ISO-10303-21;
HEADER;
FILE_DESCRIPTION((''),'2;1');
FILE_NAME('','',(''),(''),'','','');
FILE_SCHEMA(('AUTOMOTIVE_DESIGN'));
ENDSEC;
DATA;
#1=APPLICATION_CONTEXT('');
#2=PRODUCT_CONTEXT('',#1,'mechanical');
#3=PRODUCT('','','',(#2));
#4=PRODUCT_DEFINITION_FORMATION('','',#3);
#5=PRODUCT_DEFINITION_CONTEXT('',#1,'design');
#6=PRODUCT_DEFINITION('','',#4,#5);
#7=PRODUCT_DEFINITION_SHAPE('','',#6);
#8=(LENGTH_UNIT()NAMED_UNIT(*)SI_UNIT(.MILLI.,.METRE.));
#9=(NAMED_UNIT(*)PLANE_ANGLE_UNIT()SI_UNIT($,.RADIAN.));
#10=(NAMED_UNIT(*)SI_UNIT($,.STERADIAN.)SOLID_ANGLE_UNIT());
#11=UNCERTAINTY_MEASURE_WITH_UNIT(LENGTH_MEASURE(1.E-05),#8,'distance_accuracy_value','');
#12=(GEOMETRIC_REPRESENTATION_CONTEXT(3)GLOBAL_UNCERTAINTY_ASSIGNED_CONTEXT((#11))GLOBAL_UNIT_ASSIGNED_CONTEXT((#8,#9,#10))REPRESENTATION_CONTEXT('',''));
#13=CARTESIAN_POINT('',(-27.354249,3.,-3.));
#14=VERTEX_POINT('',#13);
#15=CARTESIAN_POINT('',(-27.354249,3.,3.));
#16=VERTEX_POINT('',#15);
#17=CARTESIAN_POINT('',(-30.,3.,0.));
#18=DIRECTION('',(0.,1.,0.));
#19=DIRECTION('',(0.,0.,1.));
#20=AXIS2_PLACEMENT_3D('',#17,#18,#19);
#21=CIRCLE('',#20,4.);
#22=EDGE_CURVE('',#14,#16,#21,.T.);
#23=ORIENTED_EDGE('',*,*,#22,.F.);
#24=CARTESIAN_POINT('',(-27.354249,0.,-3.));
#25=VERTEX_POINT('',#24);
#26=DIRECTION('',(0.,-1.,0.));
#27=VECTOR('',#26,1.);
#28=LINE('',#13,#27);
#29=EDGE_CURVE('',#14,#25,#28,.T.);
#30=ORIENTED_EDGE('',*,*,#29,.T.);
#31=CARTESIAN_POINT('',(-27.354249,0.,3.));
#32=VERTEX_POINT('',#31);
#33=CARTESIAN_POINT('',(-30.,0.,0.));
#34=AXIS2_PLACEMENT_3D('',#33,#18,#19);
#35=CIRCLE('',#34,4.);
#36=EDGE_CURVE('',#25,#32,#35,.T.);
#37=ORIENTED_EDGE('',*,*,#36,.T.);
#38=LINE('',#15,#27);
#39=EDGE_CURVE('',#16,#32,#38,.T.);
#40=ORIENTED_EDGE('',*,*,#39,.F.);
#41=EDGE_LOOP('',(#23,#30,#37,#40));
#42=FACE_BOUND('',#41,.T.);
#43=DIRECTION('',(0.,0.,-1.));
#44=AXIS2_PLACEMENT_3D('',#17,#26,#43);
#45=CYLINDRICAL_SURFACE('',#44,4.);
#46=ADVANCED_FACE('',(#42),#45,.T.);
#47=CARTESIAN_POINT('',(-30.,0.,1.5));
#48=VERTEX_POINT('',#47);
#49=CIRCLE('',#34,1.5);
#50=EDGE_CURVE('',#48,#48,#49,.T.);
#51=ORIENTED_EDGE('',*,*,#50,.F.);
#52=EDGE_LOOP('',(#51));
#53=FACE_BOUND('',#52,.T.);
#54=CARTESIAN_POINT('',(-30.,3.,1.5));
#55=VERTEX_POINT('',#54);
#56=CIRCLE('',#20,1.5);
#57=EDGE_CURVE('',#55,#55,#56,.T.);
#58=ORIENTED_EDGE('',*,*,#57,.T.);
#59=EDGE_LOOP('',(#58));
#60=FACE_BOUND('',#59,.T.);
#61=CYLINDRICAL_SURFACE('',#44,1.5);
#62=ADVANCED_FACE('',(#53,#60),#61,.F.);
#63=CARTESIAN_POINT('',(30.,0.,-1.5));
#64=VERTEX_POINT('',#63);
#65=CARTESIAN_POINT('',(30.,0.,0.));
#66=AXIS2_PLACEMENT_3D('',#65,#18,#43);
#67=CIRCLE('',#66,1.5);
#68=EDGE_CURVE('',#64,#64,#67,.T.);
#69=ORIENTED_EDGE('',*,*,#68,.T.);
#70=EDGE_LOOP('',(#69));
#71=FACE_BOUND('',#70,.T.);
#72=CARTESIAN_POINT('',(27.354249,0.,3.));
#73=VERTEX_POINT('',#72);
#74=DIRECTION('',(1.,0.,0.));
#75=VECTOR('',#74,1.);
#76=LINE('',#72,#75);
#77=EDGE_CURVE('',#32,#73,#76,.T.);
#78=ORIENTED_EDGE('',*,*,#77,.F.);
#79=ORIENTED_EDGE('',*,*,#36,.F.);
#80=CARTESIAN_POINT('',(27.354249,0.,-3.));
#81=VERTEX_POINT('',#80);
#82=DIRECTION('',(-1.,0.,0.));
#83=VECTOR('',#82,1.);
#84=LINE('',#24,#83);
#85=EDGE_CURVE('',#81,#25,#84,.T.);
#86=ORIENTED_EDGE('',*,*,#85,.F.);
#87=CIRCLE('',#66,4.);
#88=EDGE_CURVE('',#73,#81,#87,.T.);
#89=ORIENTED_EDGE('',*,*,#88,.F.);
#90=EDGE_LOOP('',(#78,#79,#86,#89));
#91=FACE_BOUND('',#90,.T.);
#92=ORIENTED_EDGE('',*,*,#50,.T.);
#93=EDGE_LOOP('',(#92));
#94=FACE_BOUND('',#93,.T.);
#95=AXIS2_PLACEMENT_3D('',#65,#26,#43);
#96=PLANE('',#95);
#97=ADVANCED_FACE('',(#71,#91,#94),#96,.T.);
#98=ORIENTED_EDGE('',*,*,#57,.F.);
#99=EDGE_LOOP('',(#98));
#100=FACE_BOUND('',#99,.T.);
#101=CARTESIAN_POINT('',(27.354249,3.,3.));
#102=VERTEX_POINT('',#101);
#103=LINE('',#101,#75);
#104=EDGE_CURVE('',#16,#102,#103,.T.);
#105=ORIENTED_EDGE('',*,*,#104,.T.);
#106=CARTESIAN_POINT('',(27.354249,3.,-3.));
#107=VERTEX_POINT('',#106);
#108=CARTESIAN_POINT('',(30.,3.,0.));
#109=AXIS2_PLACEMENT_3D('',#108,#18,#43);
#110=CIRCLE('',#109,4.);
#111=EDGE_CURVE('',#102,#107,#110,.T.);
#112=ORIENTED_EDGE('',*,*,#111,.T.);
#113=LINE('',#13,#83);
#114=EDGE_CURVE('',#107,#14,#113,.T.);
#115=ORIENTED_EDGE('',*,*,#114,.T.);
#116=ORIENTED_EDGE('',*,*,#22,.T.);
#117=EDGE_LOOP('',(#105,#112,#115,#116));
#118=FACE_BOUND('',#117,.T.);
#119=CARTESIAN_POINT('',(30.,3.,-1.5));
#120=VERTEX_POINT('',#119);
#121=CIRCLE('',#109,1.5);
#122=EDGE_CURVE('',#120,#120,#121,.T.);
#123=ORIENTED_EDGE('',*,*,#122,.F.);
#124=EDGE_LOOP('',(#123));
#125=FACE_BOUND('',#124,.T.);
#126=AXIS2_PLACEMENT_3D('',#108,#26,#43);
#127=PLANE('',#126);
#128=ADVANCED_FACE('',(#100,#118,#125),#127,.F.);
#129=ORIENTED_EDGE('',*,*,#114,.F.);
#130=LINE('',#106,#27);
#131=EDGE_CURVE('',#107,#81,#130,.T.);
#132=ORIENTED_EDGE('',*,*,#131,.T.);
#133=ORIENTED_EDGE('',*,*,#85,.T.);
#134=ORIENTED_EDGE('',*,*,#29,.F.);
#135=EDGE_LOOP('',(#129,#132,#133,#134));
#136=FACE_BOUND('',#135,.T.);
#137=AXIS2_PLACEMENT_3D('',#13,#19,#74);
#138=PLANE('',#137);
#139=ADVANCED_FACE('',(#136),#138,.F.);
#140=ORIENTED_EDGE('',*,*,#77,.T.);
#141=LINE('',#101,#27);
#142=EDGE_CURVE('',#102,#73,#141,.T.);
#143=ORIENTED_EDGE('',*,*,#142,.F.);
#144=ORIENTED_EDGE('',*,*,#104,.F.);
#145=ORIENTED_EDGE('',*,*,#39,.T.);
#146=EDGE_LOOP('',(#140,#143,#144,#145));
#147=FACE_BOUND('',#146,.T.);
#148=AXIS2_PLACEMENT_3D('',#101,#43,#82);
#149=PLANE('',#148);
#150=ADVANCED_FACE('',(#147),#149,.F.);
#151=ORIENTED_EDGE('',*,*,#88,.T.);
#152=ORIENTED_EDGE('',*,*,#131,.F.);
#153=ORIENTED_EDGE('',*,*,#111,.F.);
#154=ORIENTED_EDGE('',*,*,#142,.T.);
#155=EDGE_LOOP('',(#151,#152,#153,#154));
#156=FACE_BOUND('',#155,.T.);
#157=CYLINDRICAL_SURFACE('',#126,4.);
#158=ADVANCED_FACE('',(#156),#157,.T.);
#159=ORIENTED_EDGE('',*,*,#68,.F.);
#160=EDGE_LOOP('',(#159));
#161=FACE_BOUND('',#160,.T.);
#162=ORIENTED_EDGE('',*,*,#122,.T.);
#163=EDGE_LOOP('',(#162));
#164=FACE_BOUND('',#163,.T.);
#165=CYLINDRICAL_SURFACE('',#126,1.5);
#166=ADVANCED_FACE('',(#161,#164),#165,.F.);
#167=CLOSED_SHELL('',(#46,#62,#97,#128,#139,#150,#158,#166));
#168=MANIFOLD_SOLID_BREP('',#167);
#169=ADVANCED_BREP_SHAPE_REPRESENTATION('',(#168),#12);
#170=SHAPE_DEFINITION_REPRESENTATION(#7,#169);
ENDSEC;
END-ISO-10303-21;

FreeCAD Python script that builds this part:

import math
import FreeCAD as App
import Part
import Sketcher

V = App.Vector

doc = App.newDocument("Part")
body = doc.addObject("PartDesign::Body", "Body")

sketch1 = body.newObject("Sketcher::SketchObject", "Sketch")
sketch1.AttachmentSupport = (doc.getObject("XZ_Plane"), [""])
sketch1.MapMode = "FlatFace"
sketch1.addGeometry([
    Part.LineSegment(V(27.354249, -3, 0), V(-27.354249, -3, 0)),
    Part.ArcOfCircle(Part.Circle(V(-30, 0, 0), V(0, 0, 1), 4), math.radians(48.590378), math.radians(311.409622)),
    Part.LineSegment(V(-27.354249, 3, 0), V(27.354249, 3, 0)),
    Part.ArcOfCircle(Part.Circle(V(30, 0, 0), V(0, 0, 1), 4), math.radians(-131.409622), math.radians(131.409622)),
    Part.Circle(V(30, 0, 0), V(0, 0, 1), 1.5),
    Part.Circle(V(-30, 0, 0), V(0, 0, 1), 1.5),
], False)
sketch1.addConstraint([
    Sketcher.Constraint("Coincident", 0, 2, 1, 2),
    Sketcher.Constraint("Coincident", 1, 1, 2, 1),
    Sketcher.Constraint("Coincident", 2, 2, 3, 2),
    Sketcher.Constraint("Coincident", 3, 1, 0, 1),
    Sketcher.Constraint("Horizontal", 0),
    Sketcher.Constraint("Horizontal", 2),
    Sketcher.Constraint("Coincident", 4, 3, 3, 3),
    Sketcher.Constraint("Coincident", 5, 3, 1, 3),
    Sketcher.Constraint("Equal", 1, 3),
    Sketcher.Constraint("Equal", 4, 5),
    Sketcher.Constraint("Symmetric", 1, 3, 3, 3, -1, 1),
    Sketcher.Constraint("Symmetric", 0, 2, 1, 1, -1),
    Sketcher.Constraint("Diameter", 4, 3.0),
    Sketcher.Constraint("Radius", 1, 4.0),
    Sketcher.Constraint("DistanceX", 1, 3, -1, 1, 30.0),
    Sketcher.Constraint("DistanceY", 0, 2, -1, 1, 3.0),
])
pad1 = body.newObject("PartDesign::Pad", "Pad")
pad1.Profile = sketch1
pad1.Length = 3
pad1.Reversed = True

doc.recompute()
